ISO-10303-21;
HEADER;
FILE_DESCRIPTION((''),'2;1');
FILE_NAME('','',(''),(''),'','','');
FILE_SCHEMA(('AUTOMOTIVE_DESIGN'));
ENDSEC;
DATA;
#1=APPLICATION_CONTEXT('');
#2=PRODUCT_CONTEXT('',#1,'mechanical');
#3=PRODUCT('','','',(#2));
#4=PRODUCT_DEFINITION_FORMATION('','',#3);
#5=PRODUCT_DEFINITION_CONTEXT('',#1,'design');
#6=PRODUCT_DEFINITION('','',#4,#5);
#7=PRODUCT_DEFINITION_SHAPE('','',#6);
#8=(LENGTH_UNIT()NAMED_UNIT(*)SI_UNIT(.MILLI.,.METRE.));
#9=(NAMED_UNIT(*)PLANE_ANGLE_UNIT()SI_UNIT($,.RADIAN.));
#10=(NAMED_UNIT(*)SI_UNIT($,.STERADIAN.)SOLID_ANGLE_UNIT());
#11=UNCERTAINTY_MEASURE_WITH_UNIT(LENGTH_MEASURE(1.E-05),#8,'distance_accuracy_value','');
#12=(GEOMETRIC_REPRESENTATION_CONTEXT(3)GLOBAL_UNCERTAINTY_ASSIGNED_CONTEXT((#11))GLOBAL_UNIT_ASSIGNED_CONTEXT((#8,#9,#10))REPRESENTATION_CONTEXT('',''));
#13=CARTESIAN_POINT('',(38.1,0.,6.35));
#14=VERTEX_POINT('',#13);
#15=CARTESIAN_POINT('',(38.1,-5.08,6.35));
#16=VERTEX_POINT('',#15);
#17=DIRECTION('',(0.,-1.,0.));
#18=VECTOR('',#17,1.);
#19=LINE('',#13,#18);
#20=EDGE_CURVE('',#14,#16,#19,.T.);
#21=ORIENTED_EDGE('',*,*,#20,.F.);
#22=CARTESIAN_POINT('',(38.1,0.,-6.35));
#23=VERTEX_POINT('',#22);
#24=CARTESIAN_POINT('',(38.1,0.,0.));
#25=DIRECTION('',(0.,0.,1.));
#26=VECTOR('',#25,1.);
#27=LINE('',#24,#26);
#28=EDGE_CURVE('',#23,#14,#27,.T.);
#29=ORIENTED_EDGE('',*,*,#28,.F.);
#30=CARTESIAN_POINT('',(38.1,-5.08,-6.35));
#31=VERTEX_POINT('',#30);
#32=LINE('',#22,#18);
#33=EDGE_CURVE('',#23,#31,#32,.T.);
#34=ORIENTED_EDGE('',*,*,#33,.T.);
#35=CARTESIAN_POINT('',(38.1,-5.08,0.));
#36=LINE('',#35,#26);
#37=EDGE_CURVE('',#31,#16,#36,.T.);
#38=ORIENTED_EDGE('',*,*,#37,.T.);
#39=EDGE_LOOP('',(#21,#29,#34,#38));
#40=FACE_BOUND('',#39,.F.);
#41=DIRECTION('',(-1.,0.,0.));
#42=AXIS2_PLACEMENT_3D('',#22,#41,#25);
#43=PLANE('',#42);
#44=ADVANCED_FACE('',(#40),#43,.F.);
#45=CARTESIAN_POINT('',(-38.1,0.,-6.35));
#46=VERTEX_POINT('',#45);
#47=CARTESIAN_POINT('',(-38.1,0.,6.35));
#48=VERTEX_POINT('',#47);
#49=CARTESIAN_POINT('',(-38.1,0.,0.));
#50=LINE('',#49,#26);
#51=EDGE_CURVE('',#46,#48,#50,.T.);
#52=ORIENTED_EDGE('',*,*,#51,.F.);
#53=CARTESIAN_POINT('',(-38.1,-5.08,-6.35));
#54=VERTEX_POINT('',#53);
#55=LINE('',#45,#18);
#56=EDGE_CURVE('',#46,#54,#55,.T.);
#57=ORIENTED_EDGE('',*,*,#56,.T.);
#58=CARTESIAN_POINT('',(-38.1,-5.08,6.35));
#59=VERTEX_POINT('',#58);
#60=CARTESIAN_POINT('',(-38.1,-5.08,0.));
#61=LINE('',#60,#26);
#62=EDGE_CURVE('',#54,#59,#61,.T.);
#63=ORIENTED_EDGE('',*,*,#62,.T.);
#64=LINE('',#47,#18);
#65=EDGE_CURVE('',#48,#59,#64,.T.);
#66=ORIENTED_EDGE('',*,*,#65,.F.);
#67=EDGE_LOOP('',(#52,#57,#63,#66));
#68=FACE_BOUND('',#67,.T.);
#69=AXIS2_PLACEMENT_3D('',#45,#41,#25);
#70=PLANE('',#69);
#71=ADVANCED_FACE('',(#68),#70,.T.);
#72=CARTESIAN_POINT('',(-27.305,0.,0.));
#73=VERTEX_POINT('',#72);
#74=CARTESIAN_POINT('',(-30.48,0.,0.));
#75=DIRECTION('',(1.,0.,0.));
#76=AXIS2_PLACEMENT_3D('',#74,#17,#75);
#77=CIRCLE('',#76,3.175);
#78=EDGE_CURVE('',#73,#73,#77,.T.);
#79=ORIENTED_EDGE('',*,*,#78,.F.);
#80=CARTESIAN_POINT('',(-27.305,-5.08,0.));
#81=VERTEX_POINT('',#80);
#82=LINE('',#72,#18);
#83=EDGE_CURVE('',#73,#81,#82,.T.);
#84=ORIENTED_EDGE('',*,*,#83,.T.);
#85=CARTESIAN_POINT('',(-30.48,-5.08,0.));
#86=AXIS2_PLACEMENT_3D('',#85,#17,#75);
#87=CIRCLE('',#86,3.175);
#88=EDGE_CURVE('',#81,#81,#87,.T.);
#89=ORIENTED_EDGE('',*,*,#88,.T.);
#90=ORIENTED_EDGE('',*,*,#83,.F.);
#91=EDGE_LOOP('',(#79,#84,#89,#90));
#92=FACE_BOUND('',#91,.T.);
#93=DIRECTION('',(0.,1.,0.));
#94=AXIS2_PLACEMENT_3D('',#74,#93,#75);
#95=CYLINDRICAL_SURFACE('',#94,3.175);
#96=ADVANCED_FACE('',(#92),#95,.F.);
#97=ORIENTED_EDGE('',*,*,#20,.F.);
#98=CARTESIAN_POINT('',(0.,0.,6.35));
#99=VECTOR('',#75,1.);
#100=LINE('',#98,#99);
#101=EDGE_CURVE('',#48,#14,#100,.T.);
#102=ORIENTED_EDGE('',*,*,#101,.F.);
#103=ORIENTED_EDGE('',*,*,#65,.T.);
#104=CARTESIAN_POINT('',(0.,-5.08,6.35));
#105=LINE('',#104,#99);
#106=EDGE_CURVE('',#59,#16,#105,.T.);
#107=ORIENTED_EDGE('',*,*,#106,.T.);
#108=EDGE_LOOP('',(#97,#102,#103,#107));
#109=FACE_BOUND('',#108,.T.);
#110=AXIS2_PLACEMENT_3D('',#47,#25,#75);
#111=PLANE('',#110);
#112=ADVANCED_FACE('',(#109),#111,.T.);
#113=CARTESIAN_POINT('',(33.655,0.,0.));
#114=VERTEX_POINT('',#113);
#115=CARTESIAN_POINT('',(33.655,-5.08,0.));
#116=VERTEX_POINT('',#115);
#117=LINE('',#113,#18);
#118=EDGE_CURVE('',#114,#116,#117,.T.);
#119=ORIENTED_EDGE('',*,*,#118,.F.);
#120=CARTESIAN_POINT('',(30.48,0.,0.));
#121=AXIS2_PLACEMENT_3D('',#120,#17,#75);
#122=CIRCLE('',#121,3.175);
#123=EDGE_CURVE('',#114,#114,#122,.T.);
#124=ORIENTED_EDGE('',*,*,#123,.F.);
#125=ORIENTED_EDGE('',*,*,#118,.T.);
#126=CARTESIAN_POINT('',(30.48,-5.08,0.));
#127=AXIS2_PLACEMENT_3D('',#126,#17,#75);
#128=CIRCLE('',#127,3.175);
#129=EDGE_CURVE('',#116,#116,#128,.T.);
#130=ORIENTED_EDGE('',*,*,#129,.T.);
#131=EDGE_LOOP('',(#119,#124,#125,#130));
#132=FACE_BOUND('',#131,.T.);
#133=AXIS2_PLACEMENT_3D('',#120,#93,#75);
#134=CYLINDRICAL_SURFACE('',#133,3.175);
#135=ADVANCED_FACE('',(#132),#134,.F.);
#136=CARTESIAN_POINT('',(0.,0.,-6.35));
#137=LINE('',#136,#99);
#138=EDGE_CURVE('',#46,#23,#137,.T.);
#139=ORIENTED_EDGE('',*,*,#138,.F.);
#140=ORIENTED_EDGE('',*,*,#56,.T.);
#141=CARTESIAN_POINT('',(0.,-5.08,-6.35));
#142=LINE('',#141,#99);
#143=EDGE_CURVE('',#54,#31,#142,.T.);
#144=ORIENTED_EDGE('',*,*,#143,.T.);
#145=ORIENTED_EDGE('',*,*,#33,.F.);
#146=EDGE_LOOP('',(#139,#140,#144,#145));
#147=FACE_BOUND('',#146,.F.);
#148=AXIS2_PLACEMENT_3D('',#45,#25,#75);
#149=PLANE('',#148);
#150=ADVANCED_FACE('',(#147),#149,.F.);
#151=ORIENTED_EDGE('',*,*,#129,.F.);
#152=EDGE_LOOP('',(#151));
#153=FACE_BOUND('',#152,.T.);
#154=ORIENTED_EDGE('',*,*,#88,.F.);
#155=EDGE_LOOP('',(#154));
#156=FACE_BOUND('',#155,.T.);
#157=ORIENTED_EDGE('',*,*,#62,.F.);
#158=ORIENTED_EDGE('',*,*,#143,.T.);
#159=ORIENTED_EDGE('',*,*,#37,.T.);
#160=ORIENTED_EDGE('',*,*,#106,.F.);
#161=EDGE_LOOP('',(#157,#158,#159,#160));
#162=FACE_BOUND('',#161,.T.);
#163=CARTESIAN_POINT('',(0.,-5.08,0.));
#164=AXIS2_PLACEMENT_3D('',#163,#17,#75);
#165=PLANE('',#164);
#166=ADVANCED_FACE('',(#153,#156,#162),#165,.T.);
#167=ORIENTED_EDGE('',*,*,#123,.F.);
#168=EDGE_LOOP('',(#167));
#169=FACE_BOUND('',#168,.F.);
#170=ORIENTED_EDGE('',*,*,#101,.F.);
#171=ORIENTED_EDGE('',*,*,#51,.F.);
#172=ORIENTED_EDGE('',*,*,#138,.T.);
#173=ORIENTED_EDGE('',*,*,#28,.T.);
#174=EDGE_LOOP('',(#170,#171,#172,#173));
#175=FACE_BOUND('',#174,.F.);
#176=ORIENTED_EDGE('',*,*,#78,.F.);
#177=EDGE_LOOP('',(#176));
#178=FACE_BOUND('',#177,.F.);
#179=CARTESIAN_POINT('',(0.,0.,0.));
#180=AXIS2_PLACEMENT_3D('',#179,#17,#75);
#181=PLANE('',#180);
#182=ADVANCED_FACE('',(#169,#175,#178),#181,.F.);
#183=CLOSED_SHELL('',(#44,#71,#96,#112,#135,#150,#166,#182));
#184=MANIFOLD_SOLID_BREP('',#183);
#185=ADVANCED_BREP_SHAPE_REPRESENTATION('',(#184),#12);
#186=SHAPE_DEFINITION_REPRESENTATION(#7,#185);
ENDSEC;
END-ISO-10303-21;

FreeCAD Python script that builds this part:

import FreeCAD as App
import Part
import Sketcher
Q = App.Units.Quantity

doc = App.newDocument("Part")
params = doc.addObject("Spreadsheet::Sheet", "Params")
for row, (alias, value) in enumerate([
    ("sketch1_diameter", "0.25 in"),
    ("sketch1_width", "3 in"),
    ("sketch1_height", "0.5 in"),
    ("pad1_length", "0.2 in"),
], start=1):
    params.set(f"A{row}", alias)
    params.set(f"B{row}", "=" + value)
    params.setAlias(f"B{row}", alias)

body = doc.addObject("PartDesign::Body", "Body")

sketch1 = doc.addObject("Sketcher::SketchObject", "Sketch")
body.addObject(sketch1)
sketch1.AttachmentSupport = (doc.XZ_Plane, [""])
sketch1.MapMode = "FlatFace"
sketch1.addGeometry([
    Part.LineSegment(App.Vector(-38.1, 6.35, 0), App.Vector(-38.1, -6.35, 0)),
    Part.LineSegment(App.Vector(-38.1, -6.35, 0), App.Vector(38.1, -6.35, 0)),
    Part.LineSegment(App.Vector(38.1, -6.35, 0), App.Vector(38.1, 6.35, 0)),
    Part.LineSegment(App.Vector(38.1, 6.35, 0), App.Vector(-38.1, 6.35, 0)),
    Part.Circle(App.Vector(-30.48, 0, 0), App.Vector(0, 0, 1), 3.175),
    Part.Circle(App.Vector(30.48, 0, 0), App.Vector(0, 0, 1), 3.175),
], False)
sketch1.addConstraint([
    Sketcher.Constraint("Coincident", 0, 2, 1, 1),
    Sketcher.Constraint("Coincident", 1, 2, 2, 1),
    Sketcher.Constraint("Coincident", 2, 2, 3, 1),
    Sketcher.Constraint("Coincident", 3, 2, 0, 1),
    Sketcher.Constraint("Vertical", 0),
    Sketcher.Constraint("Horizontal", 1),
    Sketcher.Constraint("Vertical", 2),
    Sketcher.Constraint("Horizontal", 3),
    Sketcher.Constraint("Equal", 4, 5),
    Sketcher.Constraint("Symmetric", 4, 3, 5, 3, -1, 1),
    Sketcher.Constraint("Symmetric", 0, 2, 2, 2, -1, 1),
    Sketcher.Constraint("PointOnObject", 4, 3, -1),
    Sketcher.Constraint("Diameter", 4, Q("0.25 in")),
    Sketcher.Constraint("DistanceX", 1, 1, 1, 2, Q("3 in")),
    Sketcher.Constraint("DistanceY", 0, 2, 0, 1, Q("0.5 in")),
    Sketcher.Constraint("DistanceX", 4, 3, -1, 1, Q("1.2 in")),
])
sketch1.setExpression("Constraints[12]", "Params.sketch1_diameter")
sketch1.setExpression("Constraints[13]", "Params.sketch1_width")
sketch1.setExpression("Constraints[14]", "Params.sketch1_height")
pad1 = doc.addObject("PartDesign::Pad", "Pad")
body.addObject(pad1)
pad1.Profile = sketch1
pad1.setExpression("Length", "Params.pad1_length")

doc.recompute()
